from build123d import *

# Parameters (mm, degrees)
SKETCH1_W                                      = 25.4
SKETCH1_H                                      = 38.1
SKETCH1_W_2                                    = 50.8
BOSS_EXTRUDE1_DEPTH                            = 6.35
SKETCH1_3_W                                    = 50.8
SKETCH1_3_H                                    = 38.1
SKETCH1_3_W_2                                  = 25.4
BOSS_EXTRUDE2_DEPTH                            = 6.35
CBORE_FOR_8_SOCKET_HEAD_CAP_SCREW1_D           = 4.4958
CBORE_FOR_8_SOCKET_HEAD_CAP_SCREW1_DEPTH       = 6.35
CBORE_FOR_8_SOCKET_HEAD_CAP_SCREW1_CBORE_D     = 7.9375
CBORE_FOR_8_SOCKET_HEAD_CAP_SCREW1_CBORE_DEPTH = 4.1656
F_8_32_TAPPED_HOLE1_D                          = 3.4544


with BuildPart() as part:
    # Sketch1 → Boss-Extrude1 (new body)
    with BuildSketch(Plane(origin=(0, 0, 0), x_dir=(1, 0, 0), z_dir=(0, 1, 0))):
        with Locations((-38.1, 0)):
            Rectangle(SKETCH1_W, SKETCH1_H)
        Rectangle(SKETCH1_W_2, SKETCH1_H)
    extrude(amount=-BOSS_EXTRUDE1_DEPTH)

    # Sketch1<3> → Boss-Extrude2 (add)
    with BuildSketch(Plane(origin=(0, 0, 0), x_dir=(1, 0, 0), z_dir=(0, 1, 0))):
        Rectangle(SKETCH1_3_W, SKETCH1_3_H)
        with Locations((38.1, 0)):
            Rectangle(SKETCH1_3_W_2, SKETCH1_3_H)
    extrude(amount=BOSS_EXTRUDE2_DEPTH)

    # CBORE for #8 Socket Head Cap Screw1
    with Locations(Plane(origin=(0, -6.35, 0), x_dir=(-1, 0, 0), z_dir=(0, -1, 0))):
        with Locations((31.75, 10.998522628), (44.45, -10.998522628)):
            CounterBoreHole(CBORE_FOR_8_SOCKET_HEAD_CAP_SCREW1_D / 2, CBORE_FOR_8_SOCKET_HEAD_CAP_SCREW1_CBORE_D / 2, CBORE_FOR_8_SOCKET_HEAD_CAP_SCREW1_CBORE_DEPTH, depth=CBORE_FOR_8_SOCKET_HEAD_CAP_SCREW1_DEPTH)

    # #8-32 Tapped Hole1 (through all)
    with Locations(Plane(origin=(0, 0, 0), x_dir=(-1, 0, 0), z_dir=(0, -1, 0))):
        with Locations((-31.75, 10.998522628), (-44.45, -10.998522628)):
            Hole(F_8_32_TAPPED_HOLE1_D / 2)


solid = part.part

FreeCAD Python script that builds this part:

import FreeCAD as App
import Part
import Sketcher
Q = App.Units.Quantity

doc = App.newDocument("Part")
params = doc.addObject("Spreadsheet::Sheet", "Params")
for row, (alias, value) in enumerate([
    ("sketch1_width", "3 in"),
    ("sketch1_height", "1.5 in"),
    ("pad1_length", "0.25 in"),
    ("sketch2_width", "3 in"),
    ("sketch2_height", "1.5 in"),
    ("pad2_length", "0.25 in"),
    ("sketch3_diameter", "0.177 in"),
    ("hole_diameter", "0.177 in"),
    ("hole_depth", "0.25 in"),
    ("hole_cbore_diameter", "0.3125 in"),
    ("hole_cbore_depth", "0.164 in"),
    ("sketch4_diameter", "0.136 in"),
    ("hole2_diameter", "0.136 in"),
], start=1):
    params.set(f"A{row}", alias)
    params.set(f"B{row}", "=" + value)
    params.setAlias(f"B{row}", alias)

body = doc.addObject("PartDesign::Body", "Body")

# Sketch on XZ plane
sketch1 = body.newObject("Sketcher::SketchObject", "Sketch")
sketch1.AttachmentSupport = (doc.getObject("XZ_Plane"), [""])
sketch1.MapMode = "FlatFace"
sketch1.addGeometry([
    Part.LineSegment(App.Vector(-51, -19, 0), App.Vector(-51, 19, 0)),
    Part.LineSegment(App.Vector(-51, 19, 0), App.Vector(25, 19, 0)),
    Part.LineSegment(App.Vector(25, 19, 0), App.Vector(25, -19, 0)),
    Part.LineSegment(App.Vector(25, -19, 0), App.Vector(-51, -19, 0)),
], False)
sketch1.addConstraint([
    Sketcher.Constraint("Coincident", 0, 2, 1, 1),
    Sketcher.Constraint("Coincident", 1, 2, 2, 1),
    Sketcher.Constraint("Coincident", 2, 2, 3, 1),
    Sketcher.Constraint("Coincident", 3, 2, 0, 1),
    Sketcher.Constraint("Vertical", 0),
    Sketcher.Constraint("Horizontal", 1),
    Sketcher.Constraint("Vertical", 2),
    Sketcher.Constraint("Horizontal", 3),
    Sketcher.Constraint("DistanceX", 1, 1, 1, 2, Q("3 in")),
    Sketcher.Constraint("DistanceY", 0, 1, 0, 2, Q("1.5 in")),
    Sketcher.Constraint("DistanceX", 0, 2, -1, 1, Q("2 in")),
    Sketcher.Constraint("DistanceY", -1, 1, 0, 2, Q("0.75 in")),
])
sketch1.setExpression("Constraints[8]", "Params.sketch1_width")
sketch1.setExpression("Constraints[9]", "Params.sketch1_height")
pad1 = body.newObject("PartDesign::Pad", "Pad")
pad1.Profile = sketch1
pad1.setExpression("Length", "Params.pad1_length")

# Sketch on XZ plane
sketch2 = body.newObject("Sketcher::SketchObject", "Sketch001")
sketch2.AttachmentSupport = (doc.getObject("XZ_Plane"), [""])
sketch2.MapMode = "FlatFace"
sketch2.addGeometry([
    Part.LineSegment(App.Vector(-25, -19, 0), App.Vector(-25, 19, 0)),
    Part.LineSegment(App.Vector(-25, 19, 0), App.Vector(51, 19, 0)),
    Part.LineSegment(App.Vector(51, 19, 0), App.Vector(51, -19, 0)),
    Part.LineSegment(App.Vector(51, -19, 0), App.Vector(-25, -19, 0)),
], False)
sketch2.addConstraint([
    Sketcher.Constraint("Coincident", 0, 2, 1, 1),
    Sketcher.Constraint("Coincident", 1, 2, 2, 1),
    Sketcher.Constraint("Coincident", 2, 2, 3, 1),
    Sketcher.Constraint("Coincident", 3, 2, 0, 1),
    Sketcher.Constraint("Vertical", 0),
    Sketcher.Constraint("Horizontal", 1),
    Sketcher.Constraint("Vertical", 2),
    Sketcher.Constraint("Horizontal", 3),
    Sketcher.Constraint("DistanceX", 1, 1, 1, 2, Q("3 in")),
    Sketcher.Constraint("DistanceY", 0, 1, 0, 2, Q("1.5 in")),
    Sketcher.Constraint("DistanceX", 0, 2, -1, 1, Q("1 in")),
    Sketcher.Constraint("DistanceY", -1, 1, 0, 2, Q("0.75 in")),
])
sketch2.setExpression("Constraints[8]", "Params.sketch2_width")
sketch2.setExpression("Constraints[9]", "Params.sketch2_height")
pad2 = body.newObject("PartDesign::Pad", "Pad001")
pad2.Profile = sketch2
pad2.setExpression("Length", "Params.pad2_length")
pad2.Reversed = True

# Sketch on XZ plane
sketch3 = body.newObject("Sketcher::SketchObject", "Sketch002")
sketch3.AttachmentSupport = (doc.getObject("XZ_Plane"), [""])
sketch3.MapMode = "FlatFace"
sketch3.AttachmentOffset = App.Placement(App.Vector(0, 0, 0.25 * 25.4), App.Rotation())
sketch3.addGeometry([
    Part.Circle(App.Vector(-31.8, -11, 0), App.Vector(0, 0, 1), 2.2),
    Part.Circle(App.Vector(-44.5, 11, 0), App.Vector(0, 0, 1), 2.2),
], False)
sketch3.addConstraint([
    Sketcher.Constraint("Equal", 0, 1),
    Sketcher.Constraint("Diameter", 0, Q("0.177 in")),
    Sketcher.Constraint("DistanceX", 1, 3, 0, 3, Q("0.5 in")),
    Sketcher.Constraint("DistanceX", 0, 3, -1, 1, Q("1.25 in")),
    Sketcher.Constraint("DistanceY", 0, 3, -1, 1, 10.998523),
    Sketcher.Constraint("DistanceY", -1, 1, 1, 3, 10.998523),
])
sketch3.setExpression("Constraints[1]", "Params.sketch3_diameter")
doc.recompute()
hole = body.newObject("PartDesign::Hole", "Hole")
hole.Profile = sketch3
hole.ThreadType = "None"
hole.setExpression("Diameter", "Params.hole_diameter")
hole.DepthType = "Dimension"
hole.setExpression("Depth", "Params.hole_depth")
hole.DrillPoint = "Flat"
hole.HoleCutType = "Counterbore"
hole.setExpression("HoleCutDiameter", "Params.hole_cbore_diameter")
hole.setExpression("HoleCutDepth", "Params.hole_cbore_depth")

# Sketch on XZ plane
sketch4 = body.newObject("Sketcher::SketchObject", "Sketch003")
sketch4.AttachmentSupport = (doc.getObject("XZ_Plane"), [""])
sketch4.MapMode = "FlatFace"
sketch4.addGeometry([
    Part.Circle(App.Vector(31.8, -11, 0), App.Vector(0, 0, 1), 1.7),
    Part.Circle(App.Vector(44.5, 11, 0), App.Vector(0, 0, 1), 1.7),
], False)
sketch4.addConstraint([
    Sketcher.Constraint("Equal", 0, 1),
    Sketcher.Constraint("Diameter", 0, Q("0.136 in")),
    Sketcher.Constraint("DistanceX", 0, 3, 1, 3, Q("0.5 in")),
    Sketcher.Constraint("DistanceX", -1, 1, 0, 3, Q("1.25 in")),
    Sketcher.Constraint("DistanceY", 0, 3, -1, 1, 10.998523),
    Sketcher.Constraint("DistanceY", -1, 1, 1, 3, 10.998523),
])
sketch4.setExpression("Constraints[1]", "Params.sketch4_diameter")
doc.recompute()
hole2 = body.newObject("PartDesign::Hole", "Hole001")
hole2.Profile = sketch4
hole2.ThreadType = "None"
hole2.setExpression("Diameter", "Params.hole2_diameter")
hole2.DepthType = "ThroughAll"

doc.recompute()
